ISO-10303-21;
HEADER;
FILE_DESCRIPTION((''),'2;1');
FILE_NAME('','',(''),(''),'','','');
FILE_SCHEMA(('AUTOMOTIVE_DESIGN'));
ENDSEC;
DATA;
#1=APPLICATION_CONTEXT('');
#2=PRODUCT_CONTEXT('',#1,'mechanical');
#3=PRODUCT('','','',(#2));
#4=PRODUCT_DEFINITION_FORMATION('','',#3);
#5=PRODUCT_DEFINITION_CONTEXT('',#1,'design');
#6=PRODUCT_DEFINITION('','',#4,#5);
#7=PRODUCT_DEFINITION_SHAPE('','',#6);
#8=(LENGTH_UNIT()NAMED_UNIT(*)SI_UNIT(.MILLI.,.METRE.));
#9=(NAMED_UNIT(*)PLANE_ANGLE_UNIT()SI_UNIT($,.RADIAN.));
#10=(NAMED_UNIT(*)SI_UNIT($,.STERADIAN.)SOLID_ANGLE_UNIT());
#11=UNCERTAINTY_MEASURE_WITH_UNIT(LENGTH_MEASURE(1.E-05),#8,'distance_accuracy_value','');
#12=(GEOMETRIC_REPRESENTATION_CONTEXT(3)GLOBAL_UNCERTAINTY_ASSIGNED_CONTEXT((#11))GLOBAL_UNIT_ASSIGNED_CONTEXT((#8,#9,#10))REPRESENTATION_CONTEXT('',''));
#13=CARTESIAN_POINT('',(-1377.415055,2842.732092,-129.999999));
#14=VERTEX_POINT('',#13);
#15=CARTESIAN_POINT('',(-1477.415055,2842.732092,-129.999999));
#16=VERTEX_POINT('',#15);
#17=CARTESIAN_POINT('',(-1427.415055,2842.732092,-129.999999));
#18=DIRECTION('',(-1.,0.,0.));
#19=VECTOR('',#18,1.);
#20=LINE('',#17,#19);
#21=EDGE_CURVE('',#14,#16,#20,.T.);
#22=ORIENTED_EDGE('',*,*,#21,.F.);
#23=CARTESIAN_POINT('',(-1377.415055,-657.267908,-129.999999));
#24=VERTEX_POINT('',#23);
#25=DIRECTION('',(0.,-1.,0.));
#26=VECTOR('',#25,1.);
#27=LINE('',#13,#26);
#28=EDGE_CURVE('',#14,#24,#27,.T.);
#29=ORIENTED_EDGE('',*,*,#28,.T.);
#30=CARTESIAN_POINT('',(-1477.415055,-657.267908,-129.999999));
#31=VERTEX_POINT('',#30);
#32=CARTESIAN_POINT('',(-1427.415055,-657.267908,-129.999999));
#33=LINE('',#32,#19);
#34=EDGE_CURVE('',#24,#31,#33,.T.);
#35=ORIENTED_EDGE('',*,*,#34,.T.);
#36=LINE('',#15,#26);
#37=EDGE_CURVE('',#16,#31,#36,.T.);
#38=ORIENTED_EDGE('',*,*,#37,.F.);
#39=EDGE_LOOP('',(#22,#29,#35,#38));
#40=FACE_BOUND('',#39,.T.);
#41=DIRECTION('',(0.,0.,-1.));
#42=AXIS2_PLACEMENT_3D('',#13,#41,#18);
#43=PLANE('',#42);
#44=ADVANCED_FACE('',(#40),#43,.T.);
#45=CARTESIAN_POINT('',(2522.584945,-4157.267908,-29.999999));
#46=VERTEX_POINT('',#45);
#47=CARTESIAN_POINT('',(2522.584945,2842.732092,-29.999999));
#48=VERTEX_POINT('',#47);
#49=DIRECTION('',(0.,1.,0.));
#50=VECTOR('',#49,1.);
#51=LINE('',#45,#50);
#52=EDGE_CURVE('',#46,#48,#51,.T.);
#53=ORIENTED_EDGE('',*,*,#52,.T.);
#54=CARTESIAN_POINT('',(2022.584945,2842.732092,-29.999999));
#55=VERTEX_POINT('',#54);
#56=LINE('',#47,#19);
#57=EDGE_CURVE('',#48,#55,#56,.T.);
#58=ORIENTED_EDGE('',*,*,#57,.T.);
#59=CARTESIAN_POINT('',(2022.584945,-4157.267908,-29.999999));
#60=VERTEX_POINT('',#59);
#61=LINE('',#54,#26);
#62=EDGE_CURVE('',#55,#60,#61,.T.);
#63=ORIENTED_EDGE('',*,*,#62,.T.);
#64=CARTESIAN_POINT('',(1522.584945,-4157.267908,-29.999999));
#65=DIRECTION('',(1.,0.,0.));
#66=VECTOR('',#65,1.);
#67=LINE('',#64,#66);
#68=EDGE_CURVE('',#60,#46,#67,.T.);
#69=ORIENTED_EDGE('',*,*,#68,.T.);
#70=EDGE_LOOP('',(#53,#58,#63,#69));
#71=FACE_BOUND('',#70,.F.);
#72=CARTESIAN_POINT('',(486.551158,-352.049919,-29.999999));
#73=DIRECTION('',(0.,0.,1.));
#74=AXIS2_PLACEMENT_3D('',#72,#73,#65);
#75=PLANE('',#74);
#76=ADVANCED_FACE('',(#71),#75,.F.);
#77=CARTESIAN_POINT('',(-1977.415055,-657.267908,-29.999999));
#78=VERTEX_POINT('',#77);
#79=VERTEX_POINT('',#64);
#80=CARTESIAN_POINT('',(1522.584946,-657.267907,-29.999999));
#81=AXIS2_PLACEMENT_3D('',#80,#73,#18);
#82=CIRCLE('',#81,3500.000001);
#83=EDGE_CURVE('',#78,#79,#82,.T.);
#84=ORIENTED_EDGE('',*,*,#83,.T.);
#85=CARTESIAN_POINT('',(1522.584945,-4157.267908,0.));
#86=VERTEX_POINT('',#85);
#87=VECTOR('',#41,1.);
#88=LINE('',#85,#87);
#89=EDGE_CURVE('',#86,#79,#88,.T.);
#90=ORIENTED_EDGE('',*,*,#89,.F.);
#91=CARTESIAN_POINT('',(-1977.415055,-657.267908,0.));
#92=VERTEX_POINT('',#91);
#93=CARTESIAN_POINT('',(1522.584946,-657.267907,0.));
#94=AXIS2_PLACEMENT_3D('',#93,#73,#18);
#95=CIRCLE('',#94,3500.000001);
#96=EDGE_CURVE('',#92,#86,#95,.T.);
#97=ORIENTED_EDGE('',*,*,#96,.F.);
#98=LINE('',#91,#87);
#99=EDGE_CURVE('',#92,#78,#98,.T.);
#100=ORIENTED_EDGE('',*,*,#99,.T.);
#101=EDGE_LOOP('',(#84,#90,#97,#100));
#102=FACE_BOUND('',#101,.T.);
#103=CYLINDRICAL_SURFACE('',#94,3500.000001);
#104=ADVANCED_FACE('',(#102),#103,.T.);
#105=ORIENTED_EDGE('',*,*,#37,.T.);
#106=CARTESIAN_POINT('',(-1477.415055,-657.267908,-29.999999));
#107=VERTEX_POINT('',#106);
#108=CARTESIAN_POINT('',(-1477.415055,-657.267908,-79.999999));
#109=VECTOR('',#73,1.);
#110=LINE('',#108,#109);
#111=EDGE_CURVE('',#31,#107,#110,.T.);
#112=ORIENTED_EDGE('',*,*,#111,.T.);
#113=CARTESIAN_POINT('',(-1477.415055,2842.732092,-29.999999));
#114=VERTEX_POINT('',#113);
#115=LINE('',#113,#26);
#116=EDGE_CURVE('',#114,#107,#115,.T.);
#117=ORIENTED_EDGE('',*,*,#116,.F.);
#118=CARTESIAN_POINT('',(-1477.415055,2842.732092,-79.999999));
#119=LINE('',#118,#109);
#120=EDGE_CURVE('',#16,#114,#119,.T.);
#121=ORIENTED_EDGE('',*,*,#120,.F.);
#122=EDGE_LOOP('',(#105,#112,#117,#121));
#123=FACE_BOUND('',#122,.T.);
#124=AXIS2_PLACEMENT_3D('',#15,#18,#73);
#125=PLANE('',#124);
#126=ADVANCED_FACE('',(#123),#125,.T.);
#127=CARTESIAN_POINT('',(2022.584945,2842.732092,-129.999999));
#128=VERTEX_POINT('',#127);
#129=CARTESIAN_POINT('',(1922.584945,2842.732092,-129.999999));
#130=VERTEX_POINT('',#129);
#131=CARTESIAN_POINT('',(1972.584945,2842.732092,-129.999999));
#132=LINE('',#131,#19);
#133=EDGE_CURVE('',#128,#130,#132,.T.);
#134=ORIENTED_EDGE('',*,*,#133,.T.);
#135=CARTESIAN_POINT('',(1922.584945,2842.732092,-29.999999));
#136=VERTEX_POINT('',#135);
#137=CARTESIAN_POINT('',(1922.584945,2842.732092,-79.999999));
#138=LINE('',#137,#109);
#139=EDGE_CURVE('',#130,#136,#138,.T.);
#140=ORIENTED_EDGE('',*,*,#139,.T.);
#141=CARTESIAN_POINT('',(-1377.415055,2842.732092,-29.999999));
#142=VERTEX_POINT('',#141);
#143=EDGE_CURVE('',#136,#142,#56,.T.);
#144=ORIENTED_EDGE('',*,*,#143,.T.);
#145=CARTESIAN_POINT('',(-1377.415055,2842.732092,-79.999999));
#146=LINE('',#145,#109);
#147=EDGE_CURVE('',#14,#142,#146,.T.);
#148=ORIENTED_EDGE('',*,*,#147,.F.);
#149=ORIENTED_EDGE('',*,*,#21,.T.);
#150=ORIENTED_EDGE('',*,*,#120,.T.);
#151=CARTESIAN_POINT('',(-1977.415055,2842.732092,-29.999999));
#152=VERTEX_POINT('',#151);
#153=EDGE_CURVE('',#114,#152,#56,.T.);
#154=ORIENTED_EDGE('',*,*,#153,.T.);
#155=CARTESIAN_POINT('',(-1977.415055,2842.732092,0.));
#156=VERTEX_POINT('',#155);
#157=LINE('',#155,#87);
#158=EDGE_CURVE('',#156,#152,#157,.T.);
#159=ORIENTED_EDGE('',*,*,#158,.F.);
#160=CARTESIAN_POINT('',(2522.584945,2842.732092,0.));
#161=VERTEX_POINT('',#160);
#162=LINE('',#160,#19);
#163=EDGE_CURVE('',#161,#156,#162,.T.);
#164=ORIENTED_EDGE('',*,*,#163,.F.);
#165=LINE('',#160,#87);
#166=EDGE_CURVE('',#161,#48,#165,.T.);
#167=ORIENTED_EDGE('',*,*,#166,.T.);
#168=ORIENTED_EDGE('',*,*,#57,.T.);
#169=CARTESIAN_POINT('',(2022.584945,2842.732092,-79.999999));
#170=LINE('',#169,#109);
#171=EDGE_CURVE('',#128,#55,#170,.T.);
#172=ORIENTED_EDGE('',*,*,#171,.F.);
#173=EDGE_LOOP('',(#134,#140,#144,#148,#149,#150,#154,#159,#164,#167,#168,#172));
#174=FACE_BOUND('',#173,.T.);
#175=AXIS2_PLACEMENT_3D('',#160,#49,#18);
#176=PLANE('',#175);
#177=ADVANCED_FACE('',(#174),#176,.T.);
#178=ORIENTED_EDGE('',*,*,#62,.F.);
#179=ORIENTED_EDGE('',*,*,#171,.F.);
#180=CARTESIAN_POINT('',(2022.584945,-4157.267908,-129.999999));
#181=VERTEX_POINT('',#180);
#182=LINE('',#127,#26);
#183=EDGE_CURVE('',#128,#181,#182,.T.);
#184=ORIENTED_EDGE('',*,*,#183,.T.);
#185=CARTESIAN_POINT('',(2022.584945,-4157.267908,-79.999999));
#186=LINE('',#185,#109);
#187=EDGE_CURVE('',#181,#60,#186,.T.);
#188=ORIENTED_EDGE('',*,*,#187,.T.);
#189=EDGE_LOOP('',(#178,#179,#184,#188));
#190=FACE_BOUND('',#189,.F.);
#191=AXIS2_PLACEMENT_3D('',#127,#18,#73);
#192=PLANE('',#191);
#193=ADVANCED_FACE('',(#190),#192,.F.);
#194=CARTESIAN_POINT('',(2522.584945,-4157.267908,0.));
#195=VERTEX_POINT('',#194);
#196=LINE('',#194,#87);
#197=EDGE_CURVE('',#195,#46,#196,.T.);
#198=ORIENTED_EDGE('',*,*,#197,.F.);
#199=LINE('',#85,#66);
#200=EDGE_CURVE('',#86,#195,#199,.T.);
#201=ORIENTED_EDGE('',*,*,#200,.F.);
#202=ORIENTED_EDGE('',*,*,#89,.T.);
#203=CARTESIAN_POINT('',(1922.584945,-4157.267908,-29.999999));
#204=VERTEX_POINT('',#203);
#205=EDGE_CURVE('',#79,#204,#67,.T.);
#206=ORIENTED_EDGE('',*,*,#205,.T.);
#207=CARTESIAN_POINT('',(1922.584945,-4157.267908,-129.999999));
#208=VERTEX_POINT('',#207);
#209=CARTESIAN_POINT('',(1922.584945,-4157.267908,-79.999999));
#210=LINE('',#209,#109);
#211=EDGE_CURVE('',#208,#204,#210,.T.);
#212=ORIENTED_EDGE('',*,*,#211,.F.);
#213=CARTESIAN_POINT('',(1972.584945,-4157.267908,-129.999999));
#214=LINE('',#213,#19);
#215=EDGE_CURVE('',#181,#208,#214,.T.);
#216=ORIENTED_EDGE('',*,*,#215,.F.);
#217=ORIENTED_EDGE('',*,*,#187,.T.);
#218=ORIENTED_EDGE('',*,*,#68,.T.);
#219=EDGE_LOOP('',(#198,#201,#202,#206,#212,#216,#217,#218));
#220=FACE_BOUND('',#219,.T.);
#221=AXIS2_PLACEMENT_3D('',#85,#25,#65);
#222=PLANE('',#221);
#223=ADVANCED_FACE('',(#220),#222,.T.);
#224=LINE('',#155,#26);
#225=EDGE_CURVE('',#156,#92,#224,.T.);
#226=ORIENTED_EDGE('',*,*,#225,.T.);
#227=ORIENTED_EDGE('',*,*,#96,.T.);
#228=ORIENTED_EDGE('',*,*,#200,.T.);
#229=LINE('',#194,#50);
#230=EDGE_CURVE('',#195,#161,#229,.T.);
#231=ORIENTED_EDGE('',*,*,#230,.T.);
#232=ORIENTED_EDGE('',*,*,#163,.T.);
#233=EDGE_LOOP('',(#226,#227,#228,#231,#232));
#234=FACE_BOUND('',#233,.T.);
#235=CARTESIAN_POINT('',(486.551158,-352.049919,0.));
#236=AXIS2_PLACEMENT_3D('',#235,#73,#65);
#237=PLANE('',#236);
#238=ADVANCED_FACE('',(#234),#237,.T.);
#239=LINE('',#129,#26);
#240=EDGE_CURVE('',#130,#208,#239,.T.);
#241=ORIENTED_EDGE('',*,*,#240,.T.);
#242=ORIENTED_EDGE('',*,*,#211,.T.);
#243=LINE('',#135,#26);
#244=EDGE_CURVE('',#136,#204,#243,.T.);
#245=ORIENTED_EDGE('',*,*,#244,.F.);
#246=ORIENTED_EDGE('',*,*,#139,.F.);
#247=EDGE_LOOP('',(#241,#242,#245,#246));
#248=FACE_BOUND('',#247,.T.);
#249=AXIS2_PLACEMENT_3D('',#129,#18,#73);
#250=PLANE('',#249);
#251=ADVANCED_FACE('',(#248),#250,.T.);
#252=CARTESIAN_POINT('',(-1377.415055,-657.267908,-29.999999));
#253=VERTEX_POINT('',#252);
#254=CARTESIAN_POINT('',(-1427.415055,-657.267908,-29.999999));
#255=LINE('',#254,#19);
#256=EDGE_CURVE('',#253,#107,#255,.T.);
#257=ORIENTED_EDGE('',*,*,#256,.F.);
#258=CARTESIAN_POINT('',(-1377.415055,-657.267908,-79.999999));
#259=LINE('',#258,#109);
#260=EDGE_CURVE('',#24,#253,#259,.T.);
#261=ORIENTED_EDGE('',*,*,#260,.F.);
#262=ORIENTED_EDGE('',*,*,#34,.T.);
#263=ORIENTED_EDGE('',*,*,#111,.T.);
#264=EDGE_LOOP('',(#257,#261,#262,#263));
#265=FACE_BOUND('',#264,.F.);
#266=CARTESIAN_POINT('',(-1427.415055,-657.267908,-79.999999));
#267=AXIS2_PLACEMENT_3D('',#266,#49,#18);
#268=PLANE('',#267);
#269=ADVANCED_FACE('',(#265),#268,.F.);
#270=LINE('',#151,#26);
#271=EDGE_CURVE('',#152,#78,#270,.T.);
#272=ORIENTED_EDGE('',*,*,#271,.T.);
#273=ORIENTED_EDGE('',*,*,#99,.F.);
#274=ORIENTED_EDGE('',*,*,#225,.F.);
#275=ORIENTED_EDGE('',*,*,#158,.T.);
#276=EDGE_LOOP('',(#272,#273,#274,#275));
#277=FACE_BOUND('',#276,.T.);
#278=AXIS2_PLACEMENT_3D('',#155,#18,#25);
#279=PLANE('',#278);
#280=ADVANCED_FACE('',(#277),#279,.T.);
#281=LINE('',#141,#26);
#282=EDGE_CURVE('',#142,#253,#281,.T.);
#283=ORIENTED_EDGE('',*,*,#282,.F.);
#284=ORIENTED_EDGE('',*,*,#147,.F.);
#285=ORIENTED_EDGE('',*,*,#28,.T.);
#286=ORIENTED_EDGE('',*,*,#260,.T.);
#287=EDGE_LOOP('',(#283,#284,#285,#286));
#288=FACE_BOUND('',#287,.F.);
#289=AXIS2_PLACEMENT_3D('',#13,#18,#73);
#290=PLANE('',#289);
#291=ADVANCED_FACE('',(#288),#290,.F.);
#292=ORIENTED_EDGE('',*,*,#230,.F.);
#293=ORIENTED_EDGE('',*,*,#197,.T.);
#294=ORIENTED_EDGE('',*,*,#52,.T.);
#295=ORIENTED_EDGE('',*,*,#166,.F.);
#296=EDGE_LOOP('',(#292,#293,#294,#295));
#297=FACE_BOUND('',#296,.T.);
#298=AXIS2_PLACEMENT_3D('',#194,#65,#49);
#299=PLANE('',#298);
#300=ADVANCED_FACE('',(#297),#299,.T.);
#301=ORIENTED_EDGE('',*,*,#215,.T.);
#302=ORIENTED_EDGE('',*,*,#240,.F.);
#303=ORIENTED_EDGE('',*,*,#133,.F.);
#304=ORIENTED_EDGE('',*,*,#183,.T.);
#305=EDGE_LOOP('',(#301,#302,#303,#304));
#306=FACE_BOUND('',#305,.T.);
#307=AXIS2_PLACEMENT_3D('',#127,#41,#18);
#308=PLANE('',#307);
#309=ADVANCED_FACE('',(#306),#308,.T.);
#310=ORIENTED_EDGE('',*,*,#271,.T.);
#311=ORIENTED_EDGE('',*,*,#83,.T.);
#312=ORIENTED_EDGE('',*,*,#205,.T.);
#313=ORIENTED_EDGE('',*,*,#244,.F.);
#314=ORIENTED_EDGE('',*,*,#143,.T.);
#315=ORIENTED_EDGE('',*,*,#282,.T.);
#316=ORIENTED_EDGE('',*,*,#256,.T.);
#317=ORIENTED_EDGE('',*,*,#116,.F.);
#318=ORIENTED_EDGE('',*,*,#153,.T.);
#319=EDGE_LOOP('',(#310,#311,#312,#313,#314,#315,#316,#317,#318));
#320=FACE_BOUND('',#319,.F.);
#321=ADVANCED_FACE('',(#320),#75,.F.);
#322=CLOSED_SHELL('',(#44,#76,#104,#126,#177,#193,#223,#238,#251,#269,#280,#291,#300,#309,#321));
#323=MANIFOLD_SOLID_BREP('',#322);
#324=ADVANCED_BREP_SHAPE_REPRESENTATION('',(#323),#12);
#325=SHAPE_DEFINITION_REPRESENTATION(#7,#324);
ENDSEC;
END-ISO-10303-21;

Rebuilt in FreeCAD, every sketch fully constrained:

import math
import FreeCAD as App
import Part
import Sketcher

V = App.Vector
Q = App.Units.Quantity


def add_polygon(sketch, points):
    """Adds a closed chain of lines whose ends are joined by coincident constraints."""
    first, n = sketch.GeometryCount, len(points)
    for a, b in zip(points, points[1:] + points[:1]):
        sketch.addGeometry(Part.LineSegment(App.Vector(*a, 0), App.Vector(*b, 0)), False)
    for i in range(n):
        sketch.addConstraint(Sketcher.Constraint("Coincident", first + i, 2, first + (i + 1) % n, 1))

doc = App.newDocument("Part")
body = doc.addObject("PartDesign::Body", "Body")

# Sketch on XY plane
sketch1 = doc.addObject("Sketcher::SketchObject", "Sketch")
body.addObject(sketch1)
sketch1.AttachmentSupport = (doc.XY_Plane, [""])
sketch1.MapMode = "FlatFace"
sketch1.addGeometry([
    Part.ArcOfCircle(Part.Circle(V(1523, -657, 0), V(0, 0, 1), 3500), math.radians(-180), math.radians(-90)),  # 0
    Part.LineSegment(V(1523, -4157, 0), V(2523, -4157, 0)),  # 1
    Part.LineSegment(V(2523, -4157, 0), V(2523, 2843, 0)),  # 2
    Part.LineSegment(V(2523, 2843, 0), V(-1977, 2843, 0)),  # 3
    Part.LineSegment(V(-1977, 2843, 0), V(-1977, -657, 0)),  # 4
], False)
sketch1.addConstraint([
    Sketcher.Constraint("Coincident", 0, 2, 1, 1),
    Sketcher.Constraint("Coincident", 1, 2, 2, 1),
    Sketcher.Constraint("Coincident", 2, 2, 3, 1),
    Sketcher.Constraint("Coincident", 3, 2, 4, 1),
    Sketcher.Constraint("Coincident", 4, 2, 0, 1),
    Sketcher.Constraint("Horizontal", 1),
    Sketcher.Constraint("Vertical", 2),
    Sketcher.Constraint("Horizontal", 3),
    Sketcher.Constraint("Vertical", 4),
    Sketcher.Constraint("Horizontal", 0, 3, 4, 2),
    Sketcher.Constraint("Radius", 0, Q("3500.000001 mm")),
    Sketcher.Constraint("DistanceX", 1, 1, 1, 2, Q("1000 mm")),
    Sketcher.Constraint("DistanceX", 3, 2, 3, 1, Q("4500 mm")),
    Sketcher.Constraint("DistanceY", 2, 1, 2, 2, Q("7000 mm")),
    Sketcher.Constraint("DistanceY", 0, 2, -1, 1, Q("4157.267908 mm")),
    Sketcher.Constraint("DistanceX", -1, 1, 0, 3, Q("1522.584946 mm")),
])
pad1 = doc.addObject("PartDesign::Pad", "Pad")
body.addObject(pad1)
pad1.Profile = sketch1
pad1.Length = 29.999999
pad1.Reversed = True

# Sketch on XZ plane
sketch2 = doc.addObject("Sketcher::SketchObject", "Sketch001")
body.addObject(sketch2)
sketch2.AttachmentSupport = (doc.XZ_Plane, [""])
sketch2.MapMode = "FlatFace"
sketch2.AttachmentOffset = App.Placement(V(0, 0, -2842.732092), App.Rotation())
add_polygon(sketch2, [(2023, -30), (2023, -130), (1923, -130), (1923, -30)])  # lines 0-3
sketch2.addConstraint([
    Sketcher.Constraint("Vertical", 0),
    Sketcher.Constraint("Horizontal", 1),
    Sketcher.Constraint("Vertical", 2),
    Sketcher.Constraint("Horizontal", 3),
    Sketcher.Constraint("Equal", 3, 0),
    Sketcher.Constraint("DistanceX", 1, 2, 1, 1, Q("100 mm")),
    Sketcher.Constraint("DistanceY", 0, 2, -1, 1, Q("129.999999 mm")),
    Sketcher.Constraint("DistanceX", -1, 1, 0, 2, Q("2022.584945 mm")),
])
pad2 = doc.addObject("PartDesign::Pad", "Pad001")
body.addObject(pad2)
pad2.Profile = sketch2
pad2.Length = 7000

# Sketch on XZ plane
sketch3 = doc.addObject("Sketcher::SketchObject", "Sketch002")
body.addObject(sketch3)
sketch3.AttachmentSupport = (doc.XZ_Plane, [""])
sketch3.MapMode = "FlatFace"
sketch3.AttachmentOffset = App.Placement(V(0, 0, -2842.732092), App.Rotation())
add_polygon(sketch3, [(-1377, -30), (-1377, -130), (-1477, -130), (-1477, -30)])  # lines 0-3
sketch3.addConstraint([
    Sketcher.Constraint("Vertical", 0),
    Sketcher.Constraint("Horizontal", 1),
    Sketcher.Constraint("Vertical", 2),
    Sketcher.Constraint("Horizontal", 3),
    Sketcher.Constraint("Equal", 3, 0),
    Sketcher.Constraint("DistanceX", 1, 2, 1, 1, Q("100 mm")),
    Sketcher.Constraint("DistanceY", 0, 2, -1, 1, Q("129.999999 mm")),
    Sketcher.Constraint("DistanceX", 0, 2, -1, 1, Q("1377.415055 mm")),
])
pad3 = doc.addObject("PartDesign::Pad", "Pad002")
body.addObject(pad3)
pad3.Profile = sketch3
pad3.Length = 3500

doc.recompute()
